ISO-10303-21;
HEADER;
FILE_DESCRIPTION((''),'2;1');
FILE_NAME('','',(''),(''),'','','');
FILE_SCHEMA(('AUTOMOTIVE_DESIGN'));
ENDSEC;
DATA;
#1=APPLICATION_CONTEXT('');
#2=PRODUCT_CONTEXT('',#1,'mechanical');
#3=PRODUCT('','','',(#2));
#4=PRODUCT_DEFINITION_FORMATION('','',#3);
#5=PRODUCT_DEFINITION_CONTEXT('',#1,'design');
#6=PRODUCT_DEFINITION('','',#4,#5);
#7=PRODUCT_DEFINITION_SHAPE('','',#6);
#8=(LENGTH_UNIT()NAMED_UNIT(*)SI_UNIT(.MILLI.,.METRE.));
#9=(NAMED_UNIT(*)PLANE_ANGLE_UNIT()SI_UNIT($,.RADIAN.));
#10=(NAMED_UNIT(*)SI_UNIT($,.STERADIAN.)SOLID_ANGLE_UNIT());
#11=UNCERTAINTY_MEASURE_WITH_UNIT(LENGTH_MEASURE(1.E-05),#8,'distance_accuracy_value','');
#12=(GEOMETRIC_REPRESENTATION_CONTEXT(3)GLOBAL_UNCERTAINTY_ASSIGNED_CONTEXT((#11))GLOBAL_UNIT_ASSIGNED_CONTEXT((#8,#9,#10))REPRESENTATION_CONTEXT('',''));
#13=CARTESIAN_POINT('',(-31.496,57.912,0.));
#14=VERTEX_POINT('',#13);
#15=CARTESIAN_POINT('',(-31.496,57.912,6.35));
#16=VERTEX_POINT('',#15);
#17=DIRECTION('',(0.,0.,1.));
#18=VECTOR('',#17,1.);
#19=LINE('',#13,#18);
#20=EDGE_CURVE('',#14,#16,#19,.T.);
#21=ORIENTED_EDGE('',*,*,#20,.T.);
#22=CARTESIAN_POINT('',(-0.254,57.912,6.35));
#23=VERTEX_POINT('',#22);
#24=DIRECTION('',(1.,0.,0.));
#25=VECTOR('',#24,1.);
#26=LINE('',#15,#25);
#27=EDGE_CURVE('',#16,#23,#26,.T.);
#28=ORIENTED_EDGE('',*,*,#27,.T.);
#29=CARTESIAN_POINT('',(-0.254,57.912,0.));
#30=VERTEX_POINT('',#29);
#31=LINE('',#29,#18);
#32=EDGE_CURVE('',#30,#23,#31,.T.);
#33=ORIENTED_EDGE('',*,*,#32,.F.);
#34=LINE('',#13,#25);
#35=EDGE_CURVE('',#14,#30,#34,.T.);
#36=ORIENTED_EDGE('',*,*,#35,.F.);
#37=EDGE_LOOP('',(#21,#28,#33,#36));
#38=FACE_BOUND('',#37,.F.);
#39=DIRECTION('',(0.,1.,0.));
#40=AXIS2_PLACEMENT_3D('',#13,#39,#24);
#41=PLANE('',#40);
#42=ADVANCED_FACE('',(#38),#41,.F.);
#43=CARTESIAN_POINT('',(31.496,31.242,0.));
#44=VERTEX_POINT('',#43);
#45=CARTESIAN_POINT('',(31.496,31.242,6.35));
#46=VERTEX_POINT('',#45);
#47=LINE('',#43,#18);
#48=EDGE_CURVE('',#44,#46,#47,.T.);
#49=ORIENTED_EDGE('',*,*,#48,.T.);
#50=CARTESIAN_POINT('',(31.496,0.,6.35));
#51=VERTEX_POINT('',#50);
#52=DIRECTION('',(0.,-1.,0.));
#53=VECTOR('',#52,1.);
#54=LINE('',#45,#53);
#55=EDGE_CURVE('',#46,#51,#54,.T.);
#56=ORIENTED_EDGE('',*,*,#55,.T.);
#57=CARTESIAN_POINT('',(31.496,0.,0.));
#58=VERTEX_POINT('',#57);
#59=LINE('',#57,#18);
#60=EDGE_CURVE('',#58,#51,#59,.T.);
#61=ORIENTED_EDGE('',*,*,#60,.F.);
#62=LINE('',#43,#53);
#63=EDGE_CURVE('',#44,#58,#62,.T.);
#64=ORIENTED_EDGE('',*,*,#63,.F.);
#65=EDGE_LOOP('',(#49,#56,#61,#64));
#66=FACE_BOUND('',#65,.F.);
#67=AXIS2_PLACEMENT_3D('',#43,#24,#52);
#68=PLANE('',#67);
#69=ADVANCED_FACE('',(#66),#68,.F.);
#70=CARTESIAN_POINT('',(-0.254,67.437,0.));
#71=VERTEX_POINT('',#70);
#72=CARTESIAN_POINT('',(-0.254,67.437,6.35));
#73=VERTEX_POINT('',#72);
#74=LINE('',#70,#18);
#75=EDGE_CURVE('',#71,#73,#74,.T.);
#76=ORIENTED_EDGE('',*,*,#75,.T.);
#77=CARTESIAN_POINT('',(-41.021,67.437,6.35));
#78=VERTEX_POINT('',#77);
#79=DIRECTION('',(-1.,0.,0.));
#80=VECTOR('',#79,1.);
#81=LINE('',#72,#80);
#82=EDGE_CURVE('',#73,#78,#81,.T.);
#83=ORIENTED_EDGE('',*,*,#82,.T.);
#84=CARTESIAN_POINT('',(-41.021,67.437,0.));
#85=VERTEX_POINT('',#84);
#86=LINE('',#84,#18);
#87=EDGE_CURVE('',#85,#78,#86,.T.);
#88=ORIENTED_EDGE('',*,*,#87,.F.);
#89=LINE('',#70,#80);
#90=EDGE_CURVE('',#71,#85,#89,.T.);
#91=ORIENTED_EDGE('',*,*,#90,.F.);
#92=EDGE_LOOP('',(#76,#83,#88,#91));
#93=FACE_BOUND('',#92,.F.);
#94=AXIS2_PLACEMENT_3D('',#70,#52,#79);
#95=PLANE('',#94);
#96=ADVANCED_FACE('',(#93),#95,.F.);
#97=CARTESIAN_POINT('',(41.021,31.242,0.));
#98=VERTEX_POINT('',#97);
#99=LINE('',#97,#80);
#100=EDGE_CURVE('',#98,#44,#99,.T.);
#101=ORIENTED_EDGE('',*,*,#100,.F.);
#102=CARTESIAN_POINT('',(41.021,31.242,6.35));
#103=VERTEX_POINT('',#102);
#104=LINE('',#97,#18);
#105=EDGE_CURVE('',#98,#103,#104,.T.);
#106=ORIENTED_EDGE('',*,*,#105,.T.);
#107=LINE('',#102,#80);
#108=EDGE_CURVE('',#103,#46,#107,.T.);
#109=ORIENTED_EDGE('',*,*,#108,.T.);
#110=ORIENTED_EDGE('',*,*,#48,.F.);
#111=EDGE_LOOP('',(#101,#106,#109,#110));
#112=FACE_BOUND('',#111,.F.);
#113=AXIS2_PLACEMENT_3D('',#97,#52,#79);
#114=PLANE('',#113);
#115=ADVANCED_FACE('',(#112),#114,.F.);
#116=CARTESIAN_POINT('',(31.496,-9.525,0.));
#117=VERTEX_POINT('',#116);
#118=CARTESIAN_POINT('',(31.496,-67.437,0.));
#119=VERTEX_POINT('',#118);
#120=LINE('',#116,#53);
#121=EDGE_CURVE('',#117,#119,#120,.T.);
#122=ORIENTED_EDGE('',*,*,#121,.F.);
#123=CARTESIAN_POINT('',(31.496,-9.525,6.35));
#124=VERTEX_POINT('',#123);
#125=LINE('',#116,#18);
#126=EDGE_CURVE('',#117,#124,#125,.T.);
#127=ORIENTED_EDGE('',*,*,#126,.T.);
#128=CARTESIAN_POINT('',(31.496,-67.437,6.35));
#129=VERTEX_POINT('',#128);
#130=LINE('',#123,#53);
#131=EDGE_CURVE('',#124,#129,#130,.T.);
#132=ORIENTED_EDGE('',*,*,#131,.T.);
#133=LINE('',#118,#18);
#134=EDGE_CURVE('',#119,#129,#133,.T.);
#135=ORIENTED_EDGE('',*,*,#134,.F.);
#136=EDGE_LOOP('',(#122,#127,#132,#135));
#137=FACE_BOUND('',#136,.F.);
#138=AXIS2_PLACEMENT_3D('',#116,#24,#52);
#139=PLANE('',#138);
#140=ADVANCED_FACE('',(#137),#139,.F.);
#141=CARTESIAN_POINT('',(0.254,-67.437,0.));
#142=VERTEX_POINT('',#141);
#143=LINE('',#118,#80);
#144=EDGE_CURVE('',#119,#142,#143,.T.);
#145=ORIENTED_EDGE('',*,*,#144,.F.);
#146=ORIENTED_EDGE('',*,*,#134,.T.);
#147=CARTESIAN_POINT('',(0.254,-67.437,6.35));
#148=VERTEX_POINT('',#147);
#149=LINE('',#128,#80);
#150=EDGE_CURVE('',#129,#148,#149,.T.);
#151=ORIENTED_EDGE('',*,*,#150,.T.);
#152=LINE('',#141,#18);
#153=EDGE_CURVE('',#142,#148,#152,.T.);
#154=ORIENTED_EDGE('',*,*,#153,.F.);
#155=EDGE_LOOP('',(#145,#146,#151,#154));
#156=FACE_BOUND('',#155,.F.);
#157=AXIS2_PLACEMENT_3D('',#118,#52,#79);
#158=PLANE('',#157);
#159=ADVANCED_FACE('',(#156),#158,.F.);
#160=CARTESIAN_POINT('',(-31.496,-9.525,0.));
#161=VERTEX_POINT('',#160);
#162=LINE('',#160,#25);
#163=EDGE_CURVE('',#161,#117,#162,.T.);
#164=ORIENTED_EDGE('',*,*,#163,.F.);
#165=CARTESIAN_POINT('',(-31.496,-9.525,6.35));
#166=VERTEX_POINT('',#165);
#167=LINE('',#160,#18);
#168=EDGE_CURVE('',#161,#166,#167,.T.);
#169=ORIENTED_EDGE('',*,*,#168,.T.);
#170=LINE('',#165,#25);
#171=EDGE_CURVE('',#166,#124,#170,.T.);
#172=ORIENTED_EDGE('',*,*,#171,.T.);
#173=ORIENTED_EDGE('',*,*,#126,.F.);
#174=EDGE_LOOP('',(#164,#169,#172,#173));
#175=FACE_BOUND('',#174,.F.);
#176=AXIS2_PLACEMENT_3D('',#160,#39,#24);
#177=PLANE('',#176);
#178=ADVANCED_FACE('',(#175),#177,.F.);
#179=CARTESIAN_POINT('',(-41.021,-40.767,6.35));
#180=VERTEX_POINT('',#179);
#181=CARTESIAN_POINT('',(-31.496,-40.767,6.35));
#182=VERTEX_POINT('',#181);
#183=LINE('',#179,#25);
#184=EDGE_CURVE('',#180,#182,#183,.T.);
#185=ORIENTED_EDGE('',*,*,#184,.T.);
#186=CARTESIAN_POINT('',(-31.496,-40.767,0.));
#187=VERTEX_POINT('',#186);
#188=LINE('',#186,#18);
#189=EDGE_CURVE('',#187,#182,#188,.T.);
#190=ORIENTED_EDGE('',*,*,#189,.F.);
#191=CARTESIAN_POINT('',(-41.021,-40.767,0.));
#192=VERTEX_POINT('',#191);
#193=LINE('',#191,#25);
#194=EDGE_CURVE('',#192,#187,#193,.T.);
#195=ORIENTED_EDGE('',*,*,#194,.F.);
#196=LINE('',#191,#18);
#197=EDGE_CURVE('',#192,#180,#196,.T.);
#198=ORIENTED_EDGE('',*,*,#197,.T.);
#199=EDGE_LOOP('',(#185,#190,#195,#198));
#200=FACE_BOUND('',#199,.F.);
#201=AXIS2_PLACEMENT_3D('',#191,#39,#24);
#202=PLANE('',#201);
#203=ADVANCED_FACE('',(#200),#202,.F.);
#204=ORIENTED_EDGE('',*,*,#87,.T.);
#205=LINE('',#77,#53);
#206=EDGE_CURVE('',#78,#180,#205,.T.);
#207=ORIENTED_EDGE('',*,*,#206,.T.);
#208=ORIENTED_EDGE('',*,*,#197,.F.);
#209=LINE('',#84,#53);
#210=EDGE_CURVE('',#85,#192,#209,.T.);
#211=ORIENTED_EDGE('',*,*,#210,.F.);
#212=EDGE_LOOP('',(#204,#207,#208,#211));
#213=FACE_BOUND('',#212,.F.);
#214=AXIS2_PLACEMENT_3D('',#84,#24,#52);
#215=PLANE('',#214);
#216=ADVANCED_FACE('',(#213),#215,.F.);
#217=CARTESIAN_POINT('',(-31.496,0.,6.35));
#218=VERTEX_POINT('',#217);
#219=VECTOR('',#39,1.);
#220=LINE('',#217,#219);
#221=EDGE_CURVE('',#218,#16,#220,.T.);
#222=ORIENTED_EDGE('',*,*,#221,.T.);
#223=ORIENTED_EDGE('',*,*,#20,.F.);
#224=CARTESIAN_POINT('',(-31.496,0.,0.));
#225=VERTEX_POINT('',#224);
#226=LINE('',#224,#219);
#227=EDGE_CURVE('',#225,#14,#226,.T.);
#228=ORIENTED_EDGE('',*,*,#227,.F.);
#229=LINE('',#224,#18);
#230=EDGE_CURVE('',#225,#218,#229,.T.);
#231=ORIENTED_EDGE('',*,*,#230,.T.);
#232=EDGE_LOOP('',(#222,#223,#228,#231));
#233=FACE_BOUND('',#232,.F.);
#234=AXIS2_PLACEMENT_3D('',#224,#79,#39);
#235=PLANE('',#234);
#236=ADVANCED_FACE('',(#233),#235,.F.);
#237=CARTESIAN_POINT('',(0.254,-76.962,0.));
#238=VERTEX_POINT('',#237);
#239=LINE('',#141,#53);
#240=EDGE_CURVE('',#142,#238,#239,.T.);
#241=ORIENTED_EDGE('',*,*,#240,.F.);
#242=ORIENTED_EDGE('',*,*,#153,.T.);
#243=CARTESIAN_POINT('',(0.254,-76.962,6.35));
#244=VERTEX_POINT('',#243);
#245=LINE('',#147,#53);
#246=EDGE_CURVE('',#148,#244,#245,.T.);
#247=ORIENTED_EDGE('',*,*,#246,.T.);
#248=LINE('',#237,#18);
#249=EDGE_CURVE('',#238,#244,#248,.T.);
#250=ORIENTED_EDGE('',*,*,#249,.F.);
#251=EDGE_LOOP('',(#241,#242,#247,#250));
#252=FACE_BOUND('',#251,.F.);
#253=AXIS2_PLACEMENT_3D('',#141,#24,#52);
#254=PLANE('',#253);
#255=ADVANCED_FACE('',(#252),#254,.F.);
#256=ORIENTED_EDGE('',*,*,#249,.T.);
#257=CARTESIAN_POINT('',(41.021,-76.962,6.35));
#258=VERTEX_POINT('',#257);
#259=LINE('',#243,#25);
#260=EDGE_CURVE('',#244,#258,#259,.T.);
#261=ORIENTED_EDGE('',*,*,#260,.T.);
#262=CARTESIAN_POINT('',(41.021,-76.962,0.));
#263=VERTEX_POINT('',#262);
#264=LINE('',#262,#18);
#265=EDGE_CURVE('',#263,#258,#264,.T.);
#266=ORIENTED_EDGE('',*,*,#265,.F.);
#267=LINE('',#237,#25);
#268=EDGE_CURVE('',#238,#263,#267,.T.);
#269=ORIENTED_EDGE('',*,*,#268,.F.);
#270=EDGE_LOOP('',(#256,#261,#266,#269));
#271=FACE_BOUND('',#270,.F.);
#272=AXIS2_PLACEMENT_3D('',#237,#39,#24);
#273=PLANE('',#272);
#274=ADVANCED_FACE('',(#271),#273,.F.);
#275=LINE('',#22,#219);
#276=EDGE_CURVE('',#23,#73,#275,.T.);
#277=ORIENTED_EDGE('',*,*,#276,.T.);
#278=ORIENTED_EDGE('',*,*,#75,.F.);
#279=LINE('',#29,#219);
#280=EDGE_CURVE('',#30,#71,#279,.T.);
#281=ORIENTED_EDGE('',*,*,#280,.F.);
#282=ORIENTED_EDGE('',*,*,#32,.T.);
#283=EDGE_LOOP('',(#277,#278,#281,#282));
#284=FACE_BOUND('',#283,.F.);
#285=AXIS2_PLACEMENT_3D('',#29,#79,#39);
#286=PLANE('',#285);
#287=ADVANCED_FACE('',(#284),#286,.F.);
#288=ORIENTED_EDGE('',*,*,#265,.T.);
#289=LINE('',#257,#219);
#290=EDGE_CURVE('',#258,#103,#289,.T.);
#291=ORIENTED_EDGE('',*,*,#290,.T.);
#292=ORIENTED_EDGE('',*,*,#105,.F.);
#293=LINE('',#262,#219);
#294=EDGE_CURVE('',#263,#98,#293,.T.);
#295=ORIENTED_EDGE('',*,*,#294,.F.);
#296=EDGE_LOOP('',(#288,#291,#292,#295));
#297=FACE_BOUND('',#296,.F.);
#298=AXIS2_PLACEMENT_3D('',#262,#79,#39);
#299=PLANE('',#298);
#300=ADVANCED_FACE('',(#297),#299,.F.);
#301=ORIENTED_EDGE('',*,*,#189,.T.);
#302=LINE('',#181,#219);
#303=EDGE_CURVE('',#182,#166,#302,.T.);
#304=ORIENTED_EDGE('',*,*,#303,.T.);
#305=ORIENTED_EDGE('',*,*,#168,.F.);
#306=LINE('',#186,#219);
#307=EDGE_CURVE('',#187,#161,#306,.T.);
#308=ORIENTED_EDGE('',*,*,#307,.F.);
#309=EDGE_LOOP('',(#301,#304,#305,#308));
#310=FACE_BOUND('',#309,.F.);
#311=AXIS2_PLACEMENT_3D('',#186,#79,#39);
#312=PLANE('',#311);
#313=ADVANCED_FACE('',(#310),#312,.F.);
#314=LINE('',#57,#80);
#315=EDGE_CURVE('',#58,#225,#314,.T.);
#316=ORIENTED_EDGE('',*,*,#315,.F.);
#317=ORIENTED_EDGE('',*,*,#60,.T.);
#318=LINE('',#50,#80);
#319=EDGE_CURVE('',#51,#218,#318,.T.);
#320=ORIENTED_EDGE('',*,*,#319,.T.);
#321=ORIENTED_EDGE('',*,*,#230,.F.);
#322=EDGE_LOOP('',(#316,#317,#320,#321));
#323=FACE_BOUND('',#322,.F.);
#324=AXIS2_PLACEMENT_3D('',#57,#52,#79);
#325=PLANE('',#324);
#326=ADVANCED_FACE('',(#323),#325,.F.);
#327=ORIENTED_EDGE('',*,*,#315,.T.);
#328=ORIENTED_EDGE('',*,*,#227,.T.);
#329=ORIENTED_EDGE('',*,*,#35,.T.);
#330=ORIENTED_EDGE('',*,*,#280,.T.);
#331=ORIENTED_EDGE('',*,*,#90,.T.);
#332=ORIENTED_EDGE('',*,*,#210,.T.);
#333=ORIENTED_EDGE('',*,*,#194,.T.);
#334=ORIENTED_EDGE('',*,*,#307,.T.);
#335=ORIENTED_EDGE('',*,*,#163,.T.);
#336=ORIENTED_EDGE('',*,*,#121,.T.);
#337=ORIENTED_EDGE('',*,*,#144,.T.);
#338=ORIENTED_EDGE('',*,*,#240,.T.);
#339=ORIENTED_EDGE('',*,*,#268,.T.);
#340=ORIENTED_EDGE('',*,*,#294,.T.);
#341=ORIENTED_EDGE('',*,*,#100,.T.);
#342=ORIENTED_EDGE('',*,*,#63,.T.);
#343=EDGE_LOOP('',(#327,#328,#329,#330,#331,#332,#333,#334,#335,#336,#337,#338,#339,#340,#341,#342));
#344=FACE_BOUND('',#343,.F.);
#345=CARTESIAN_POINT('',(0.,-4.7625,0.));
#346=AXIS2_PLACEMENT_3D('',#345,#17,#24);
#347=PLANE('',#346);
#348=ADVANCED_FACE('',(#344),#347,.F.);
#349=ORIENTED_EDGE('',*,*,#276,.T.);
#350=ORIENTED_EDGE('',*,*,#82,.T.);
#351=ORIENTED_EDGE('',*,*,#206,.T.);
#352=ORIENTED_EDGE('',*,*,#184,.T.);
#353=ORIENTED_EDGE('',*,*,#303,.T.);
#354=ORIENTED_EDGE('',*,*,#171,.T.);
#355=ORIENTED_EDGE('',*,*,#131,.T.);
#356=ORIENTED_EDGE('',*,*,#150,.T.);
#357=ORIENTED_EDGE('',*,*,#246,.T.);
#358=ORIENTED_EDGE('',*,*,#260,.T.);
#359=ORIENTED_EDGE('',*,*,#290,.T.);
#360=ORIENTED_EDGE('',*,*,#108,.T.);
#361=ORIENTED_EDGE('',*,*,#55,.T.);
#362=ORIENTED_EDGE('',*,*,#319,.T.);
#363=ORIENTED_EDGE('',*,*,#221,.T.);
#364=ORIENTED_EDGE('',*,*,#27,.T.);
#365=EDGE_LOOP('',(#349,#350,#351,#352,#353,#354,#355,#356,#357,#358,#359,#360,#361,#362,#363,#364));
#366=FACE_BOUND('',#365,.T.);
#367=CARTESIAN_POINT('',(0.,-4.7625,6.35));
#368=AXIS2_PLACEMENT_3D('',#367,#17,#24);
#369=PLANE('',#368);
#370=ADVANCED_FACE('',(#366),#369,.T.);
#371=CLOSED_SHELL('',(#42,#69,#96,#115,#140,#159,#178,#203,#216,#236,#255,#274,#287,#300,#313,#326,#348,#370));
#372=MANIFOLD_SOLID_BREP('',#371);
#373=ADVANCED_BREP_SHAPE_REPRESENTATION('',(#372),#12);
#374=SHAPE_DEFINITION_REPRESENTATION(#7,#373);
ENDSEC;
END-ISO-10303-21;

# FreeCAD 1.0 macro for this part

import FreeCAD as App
import Part
import Sketcher
Q = App.Units.Quantity

doc = App.newDocument("Part")
params = doc.addObject("Spreadsheet::Sheet", "Params")
for row, (alias, value) in enumerate([
    ("sketch1_width", "1.23 in"),
    ("sketch1_width2", "2.48 in"),
    ("sketch1_height", "4.26 in"),
    ("sketch1_height2", "2.28 in"),
    ("pad1_length", "0.25 in"),
], start=1):
    params.set(f"A{row}", alias)
    params.set(f"B{row}", "=" + value)
    params.setAlias(f"B{row}", alias)

body = doc.addObject("PartDesign::Body", "Body")

sketch1 = body.newObject("Sketcher::SketchObject", "Sketch")
sketch1.AttachmentSupport = (doc.getObject("XY_Plane"), [""])
sketch1.MapMode = "FlatFace"
sketch1.addGeometry(Part.LineSegment(App.Vector(-31.496, 57.912, 0), App.Vector(-0.254, 57.912, 0)), False)
sketch1.addGeometry(Part.LineSegment(App.Vector(-0.254, 57.912, 0), App.Vector(-0.254, 67.437, 0)), False)
sketch1.addGeometry(Part.LineSegment(App.Vector(-0.254, 67.437, 0), App.Vector(-41.021, 67.437, 0)), False)
sketch1.addGeometry(Part.LineSegment(App.Vector(-41.021, 67.437, 0), App.Vector(-41.021, -40.767, 0)), False)
sketch1.addGeometry(Part.LineSegment(App.Vector(-41.021, -40.767, 0), App.Vector(-31.496, -40.767, 0)), False)
sketch1.addGeometry(Part.LineSegment(App.Vector(-31.496, -40.767, 0), App.Vector(-31.496, -9.525, 0)), False)
sketch1.addGeometry(Part.LineSegment(App.Vector(-31.496, -9.525, 0), App.Vector(31.496, -9.525, 0)), False)
sketch1.addGeometry(Part.LineSegment(App.Vector(31.496, -9.525, 0), App.Vector(31.496, -67.437, 0)), False)
sketch1.addGeometry(Part.LineSegment(App.Vector(31.496, -67.437, 0), App.Vector(0.254, -67.437, 0)), False)
sketch1.addGeometry(Part.LineSegment(App.Vector(0.254, -67.437, 0), App.Vector(0.254, -76.962, 0)), False)
sketch1.addGeometry(Part.LineSegment(App.Vector(0.254, -76.962, 0), App.Vector(41.021, -76.962, 0)), False)
sketch1.addGeometry(Part.LineSegment(App.Vector(41.021, -76.962, 0), App.Vector(41.021, 31.242, 0)), False)
sketch1.addGeometry(Part.LineSegment(App.Vector(41.021, 31.242, 0), App.Vector(31.496, 31.242, 0)), False)
sketch1.addGeometry(Part.LineSegment(App.Vector(31.496, 31.242, 0), App.Vector(31.496, 0, 0)), False)
sketch1.addGeometry(Part.LineSegment(App.Vector(31.496, 0, 0), App.Vector(-31.496, 0, 0)), False)
sketch1.addGeometry(Part.LineSegment(App.Vector(-31.496, 0, 0), App.Vector(-31.496, 57.912, 0)), False)
sketch1.addConstraint(Sketcher.Constraint("Coincident", 0, 2, 1, 1))
sketch1.addConstraint(Sketcher.Constraint("Coincident", 1, 2, 2, 1))
sketch1.addConstraint(Sketcher.Constraint("Coincident", 2, 2, 3, 1))
sketch1.addConstraint(Sketcher.Constraint("Coincident", 3, 2, 4, 1))
sketch1.addConstraint(Sketcher.Constraint("Coincident", 4, 2, 5, 1))
sketch1.addConstraint(Sketcher.Constraint("Coincident", 5, 2, 6, 1))
sketch1.addConstraint(Sketcher.Constraint("Coincident", 6, 2, 7, 1))
sketch1.addConstraint(Sketcher.Constraint("Coincident", 7, 2, 8, 1))
sketch1.addConstraint(Sketcher.Constraint("Coincident", 8, 2, 9, 1))
sketch1.addConstraint(Sketcher.Constraint("Coincident", 9, 2, 10, 1))
sketch1.addConstraint(Sketcher.Constraint("Coincident", 10, 2, 11, 1))
sketch1.addConstraint(Sketcher.Constraint("Coincident", 11, 2, 12, 1))
sketch1.addConstraint(Sketcher.Constraint("Coincident", 12, 2, 13, 1))
sketch1.addConstraint(Sketcher.Constraint("Coincident", 13, 2, 14, 1))
sketch1.addConstraint(Sketcher.Constraint("Coincident", 14, 2, 15, 1))
sketch1.addConstraint(Sketcher.Constraint("Coincident", 15, 2, 0, 1))
sketch1.addConstraint(Sketcher.Constraint("Horizontal", 0))
sketch1.addConstraint(Sketcher.Constraint("Vertical", 1))
sketch1.addConstraint(Sketcher.Constraint("Horizontal", 2))
sketch1.addConstraint(Sketcher.Constraint("Vertical", 3))
sketch1.addConstraint(Sketcher.Constraint("Horizontal", 4))
sketch1.addConstraint(Sketcher.Constraint("Vertical", 5))
sketch1.addConstraint(Sketcher.Constraint("Horizontal", 6))
sketch1.addConstraint(Sketcher.Constraint("Vertical", 7))
sketch1.addConstraint(Sketcher.Constraint("Horizontal", 8))
sketch1.addConstraint(Sketcher.Constraint("Vertical", 9))
sketch1.addConstraint(Sketcher.Constraint("Horizontal", 10))
sketch1.addConstraint(Sketcher.Constraint("Vertical", 11))
sketch1.addConstraint(Sketcher.Constraint("Horizontal", 12))
sketch1.addConstraint(Sketcher.Constraint("Vertical", 13))
sketch1.addConstraint(Sketcher.Constraint("Horizontal", 14))
sketch1.addConstraint(Sketcher.Constraint("Vertical", 15))
sketch1.addConstraint(Sketcher.Constraint("Symmetric", 1, 2, 8, 2, -1, 1))
sketch1.addConstraint(Sketcher.Constraint("Symmetric", 13, 2, 14, 2, -1, 1))
sketch1.addConstraint(Sketcher.Constraint("Vertical", 7, 2, 12, 2))
sketch1.addConstraint(Sketcher.Constraint("Vertical", 5, 2, 14, 2))
sketch1.addConstraint(Sketcher.Constraint("Equal", 2, 10))
sketch1.addConstraint(Sketcher.Constraint("Equal", 12, 1))
sketch1.addConstraint(Sketcher.Constraint("Equal", 8, 5))
sketch1.addConstraint(Sketcher.Constraint("Equal", 1, 9))
sketch1.addConstraint(Sketcher.Constraint("Equal", 3, 11))
sketch1.addConstraint(Sketcher.Constraint("Equal", 5, 13))
sketch1.addConstraint(Sketcher.Constraint("DistanceX", 0, 1, 0, 2, Q("1.23 in")))
sketch1.addConstraint(Sketcher.Constraint("DistanceX", 6, 1, 6, 2, Q("2.48 in")))
sketch1.addConstraint(Sketcher.Constraint("DistanceY", 3, 2, 3, 1, Q("4.26 in")))
sketch1.addConstraint(Sketcher.Constraint("DistanceY", 7, 2, 7, 1, Q("2.28 in")))
sketch1.setExpression("Constraints[42]", "Params.sketch1_width")
sketch1.setExpression("Constraints[43]", "Params.sketch1_width2")
sketch1.setExpression("Constraints[44]", "Params.sketch1_height")
sketch1.setExpression("Constraints[45]", "Params.sketch1_height2")
pad1 = body.newObject("PartDesign::Pad", "Pad")
pad1.Profile = sketch1
pad1.setExpression("Length", "Params.pad1_length")

doc.recompute()
